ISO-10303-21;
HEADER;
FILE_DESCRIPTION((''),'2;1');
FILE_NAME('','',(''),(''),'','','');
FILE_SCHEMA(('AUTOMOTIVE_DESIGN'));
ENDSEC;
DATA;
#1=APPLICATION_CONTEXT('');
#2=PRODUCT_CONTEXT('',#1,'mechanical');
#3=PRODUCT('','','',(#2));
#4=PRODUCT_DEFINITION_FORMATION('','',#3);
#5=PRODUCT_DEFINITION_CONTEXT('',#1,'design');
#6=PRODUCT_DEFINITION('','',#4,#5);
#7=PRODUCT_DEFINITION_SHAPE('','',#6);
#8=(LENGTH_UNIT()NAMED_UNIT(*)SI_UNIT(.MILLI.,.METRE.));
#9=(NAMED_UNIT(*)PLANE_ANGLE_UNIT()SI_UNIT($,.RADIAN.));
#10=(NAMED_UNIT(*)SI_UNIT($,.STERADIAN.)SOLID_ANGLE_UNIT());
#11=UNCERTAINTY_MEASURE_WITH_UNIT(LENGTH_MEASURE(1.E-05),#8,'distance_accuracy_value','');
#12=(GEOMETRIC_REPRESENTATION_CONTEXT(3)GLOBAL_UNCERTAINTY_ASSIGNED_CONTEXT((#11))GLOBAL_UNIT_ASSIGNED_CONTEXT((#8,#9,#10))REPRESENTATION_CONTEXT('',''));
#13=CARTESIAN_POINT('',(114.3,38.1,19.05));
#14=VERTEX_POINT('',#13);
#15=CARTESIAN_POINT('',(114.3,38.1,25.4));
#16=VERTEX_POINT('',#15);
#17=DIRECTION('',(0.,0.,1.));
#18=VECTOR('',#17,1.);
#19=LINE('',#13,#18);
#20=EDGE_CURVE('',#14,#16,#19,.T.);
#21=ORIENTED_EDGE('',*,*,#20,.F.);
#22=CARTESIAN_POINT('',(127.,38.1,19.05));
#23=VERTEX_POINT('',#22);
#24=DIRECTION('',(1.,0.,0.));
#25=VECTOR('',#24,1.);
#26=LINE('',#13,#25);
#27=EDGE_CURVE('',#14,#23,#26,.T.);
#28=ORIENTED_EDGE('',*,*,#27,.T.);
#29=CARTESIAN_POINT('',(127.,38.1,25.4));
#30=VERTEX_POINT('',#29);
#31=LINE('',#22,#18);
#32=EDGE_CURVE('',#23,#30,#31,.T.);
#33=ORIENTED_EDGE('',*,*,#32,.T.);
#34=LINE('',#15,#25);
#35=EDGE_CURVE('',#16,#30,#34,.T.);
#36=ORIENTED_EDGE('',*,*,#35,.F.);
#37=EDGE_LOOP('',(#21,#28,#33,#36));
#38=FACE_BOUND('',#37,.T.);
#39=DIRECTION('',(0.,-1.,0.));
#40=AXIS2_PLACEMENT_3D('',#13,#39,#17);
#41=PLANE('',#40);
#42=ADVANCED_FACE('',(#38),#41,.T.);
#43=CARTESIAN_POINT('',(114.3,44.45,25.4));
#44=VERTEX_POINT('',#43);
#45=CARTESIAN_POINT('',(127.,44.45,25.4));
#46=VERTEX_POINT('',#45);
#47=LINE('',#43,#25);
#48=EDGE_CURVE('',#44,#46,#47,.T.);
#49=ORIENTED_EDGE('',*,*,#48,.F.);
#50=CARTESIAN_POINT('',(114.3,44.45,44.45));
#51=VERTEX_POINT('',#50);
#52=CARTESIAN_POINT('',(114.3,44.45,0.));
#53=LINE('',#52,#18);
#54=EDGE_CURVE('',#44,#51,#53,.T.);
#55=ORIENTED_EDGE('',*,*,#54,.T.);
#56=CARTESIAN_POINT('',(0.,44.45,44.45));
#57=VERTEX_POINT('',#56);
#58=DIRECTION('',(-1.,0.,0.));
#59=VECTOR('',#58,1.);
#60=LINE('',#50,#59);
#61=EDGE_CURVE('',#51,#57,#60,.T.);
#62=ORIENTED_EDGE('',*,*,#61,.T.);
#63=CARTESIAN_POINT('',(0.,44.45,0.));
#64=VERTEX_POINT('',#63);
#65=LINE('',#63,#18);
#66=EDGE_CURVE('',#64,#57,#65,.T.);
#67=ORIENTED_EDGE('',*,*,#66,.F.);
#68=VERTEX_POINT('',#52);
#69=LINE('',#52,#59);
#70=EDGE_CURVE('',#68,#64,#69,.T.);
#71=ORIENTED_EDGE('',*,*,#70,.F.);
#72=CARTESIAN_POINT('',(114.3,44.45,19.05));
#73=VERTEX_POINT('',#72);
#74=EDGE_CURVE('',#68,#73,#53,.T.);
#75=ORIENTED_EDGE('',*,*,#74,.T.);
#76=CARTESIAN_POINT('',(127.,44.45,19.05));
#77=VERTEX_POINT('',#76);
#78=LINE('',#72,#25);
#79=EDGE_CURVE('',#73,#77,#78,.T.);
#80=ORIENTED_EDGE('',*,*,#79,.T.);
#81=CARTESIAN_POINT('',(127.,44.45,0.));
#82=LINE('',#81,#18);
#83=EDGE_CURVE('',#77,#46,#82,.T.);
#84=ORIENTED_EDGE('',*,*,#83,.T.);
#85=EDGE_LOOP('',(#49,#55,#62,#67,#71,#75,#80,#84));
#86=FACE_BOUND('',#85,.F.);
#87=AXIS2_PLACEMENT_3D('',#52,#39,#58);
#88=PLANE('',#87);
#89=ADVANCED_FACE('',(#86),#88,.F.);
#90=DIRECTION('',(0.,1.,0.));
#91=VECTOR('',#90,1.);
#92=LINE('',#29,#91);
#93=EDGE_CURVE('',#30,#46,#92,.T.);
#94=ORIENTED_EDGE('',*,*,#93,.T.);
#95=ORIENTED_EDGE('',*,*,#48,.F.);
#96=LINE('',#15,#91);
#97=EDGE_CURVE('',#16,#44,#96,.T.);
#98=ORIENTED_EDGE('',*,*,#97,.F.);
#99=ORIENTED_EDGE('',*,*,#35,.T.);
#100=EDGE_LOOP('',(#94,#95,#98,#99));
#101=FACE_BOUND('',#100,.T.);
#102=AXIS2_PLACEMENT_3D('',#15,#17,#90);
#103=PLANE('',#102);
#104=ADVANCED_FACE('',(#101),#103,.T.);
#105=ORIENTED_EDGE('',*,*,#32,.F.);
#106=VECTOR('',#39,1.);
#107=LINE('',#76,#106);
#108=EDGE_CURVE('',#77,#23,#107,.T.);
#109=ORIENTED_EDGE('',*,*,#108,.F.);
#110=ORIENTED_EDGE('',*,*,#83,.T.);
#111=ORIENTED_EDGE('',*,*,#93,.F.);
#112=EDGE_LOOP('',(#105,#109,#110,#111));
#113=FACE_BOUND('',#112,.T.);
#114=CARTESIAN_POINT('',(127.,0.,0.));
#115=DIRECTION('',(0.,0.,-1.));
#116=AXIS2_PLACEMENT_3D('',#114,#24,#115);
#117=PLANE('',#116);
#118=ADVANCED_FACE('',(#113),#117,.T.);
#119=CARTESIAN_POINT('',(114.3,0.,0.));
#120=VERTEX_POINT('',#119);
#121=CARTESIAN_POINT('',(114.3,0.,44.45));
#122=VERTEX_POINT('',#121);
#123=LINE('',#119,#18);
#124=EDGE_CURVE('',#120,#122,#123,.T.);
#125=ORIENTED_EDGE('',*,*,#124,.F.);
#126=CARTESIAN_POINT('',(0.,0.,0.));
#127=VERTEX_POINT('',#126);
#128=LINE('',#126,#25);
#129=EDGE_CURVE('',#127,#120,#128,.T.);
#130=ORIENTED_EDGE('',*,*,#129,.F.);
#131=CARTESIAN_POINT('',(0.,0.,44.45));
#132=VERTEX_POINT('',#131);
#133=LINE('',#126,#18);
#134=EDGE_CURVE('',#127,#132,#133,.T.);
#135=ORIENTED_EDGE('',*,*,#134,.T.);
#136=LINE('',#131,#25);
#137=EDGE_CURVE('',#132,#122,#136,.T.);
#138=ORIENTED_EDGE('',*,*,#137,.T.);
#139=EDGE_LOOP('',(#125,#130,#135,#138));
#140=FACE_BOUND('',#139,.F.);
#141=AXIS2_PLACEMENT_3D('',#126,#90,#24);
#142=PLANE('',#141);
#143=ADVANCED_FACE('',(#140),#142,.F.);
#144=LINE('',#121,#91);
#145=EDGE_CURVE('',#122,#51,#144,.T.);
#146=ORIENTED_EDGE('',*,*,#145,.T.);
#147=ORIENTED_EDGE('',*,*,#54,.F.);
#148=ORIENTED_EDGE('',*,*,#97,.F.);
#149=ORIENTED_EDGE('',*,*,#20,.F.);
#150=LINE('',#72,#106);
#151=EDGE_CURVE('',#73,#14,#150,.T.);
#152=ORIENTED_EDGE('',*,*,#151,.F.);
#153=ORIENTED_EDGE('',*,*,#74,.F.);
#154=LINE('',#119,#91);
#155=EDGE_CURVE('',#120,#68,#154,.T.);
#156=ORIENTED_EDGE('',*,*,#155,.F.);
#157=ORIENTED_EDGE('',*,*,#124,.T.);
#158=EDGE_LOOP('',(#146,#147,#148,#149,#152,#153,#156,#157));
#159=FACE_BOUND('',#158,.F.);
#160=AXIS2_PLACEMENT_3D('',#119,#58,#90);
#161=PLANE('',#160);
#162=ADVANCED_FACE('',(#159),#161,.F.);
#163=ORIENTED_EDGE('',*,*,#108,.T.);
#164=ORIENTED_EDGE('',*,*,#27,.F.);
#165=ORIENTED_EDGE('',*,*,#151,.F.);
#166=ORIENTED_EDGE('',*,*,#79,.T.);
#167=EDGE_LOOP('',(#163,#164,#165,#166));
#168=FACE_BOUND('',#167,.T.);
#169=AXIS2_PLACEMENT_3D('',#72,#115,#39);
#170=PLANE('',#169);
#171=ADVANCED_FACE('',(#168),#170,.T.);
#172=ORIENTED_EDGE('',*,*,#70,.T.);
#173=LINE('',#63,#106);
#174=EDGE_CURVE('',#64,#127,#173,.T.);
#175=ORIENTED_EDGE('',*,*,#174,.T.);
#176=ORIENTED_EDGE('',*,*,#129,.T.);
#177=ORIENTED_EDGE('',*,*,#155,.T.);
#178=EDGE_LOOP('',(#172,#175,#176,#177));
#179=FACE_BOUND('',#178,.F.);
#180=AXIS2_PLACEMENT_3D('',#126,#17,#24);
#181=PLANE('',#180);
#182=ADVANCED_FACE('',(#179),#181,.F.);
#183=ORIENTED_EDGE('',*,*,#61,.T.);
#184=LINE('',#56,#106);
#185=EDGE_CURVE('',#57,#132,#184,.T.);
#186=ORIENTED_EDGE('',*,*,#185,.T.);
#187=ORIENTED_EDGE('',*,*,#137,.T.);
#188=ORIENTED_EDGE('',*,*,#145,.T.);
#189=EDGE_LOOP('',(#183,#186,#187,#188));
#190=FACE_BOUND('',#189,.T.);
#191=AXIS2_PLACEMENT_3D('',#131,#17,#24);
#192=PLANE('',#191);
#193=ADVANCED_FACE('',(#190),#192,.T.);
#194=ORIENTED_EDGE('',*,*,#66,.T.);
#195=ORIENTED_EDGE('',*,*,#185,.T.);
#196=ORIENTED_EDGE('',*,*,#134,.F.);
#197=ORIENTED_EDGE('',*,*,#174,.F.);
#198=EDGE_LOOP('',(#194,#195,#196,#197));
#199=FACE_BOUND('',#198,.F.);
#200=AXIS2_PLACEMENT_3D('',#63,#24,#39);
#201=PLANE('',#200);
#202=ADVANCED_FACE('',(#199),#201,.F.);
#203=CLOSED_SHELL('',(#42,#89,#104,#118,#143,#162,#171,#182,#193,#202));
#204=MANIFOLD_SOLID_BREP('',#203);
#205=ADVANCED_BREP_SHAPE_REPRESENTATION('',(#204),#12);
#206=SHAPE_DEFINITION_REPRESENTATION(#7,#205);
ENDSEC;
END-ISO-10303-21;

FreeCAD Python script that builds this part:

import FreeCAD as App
import Part
import Sketcher
from FreeCAD import Vector
Q = App.Units.Quantity


def add_polygon(sketch, points):
    """Adds a closed chain of lines whose ends are joined by coincident constraints."""
    first, n = sketch.GeometryCount, len(points)
    for a, b in zip(points, points[1:] + points[:1]):
        sketch.addGeometry(Part.LineSegment(App.Vector(*a, 0), App.Vector(*b, 0)), False)
    for i in range(n):
        sketch.addConstraint(Sketcher.Constraint("Coincident", first + i, 2, first + (i + 1) % n, 1))

doc = App.newDocument("Part")
body = doc.addObject("PartDesign::Body", "Body")

# Sketch on XY plane
sketch1 = body.newObject("Sketcher::SketchObject", "Sketch")
sketch1.AttachmentSupport = (doc.getObject("XY_Plane"), [""])
sketch1.MapMode = "FlatFace"
add_polygon(sketch1, [(0, 44), (0, 0), (114, 0), (114, 44)])  # lines 0-3
sketch1.addConstraint(Sketcher.Constraint("Vertical", 0))
sketch1.addConstraint(Sketcher.Constraint("Horizontal", 1))
sketch1.addConstraint(Sketcher.Constraint("Vertical", 2))
sketch1.addConstraint(Sketcher.Constraint("Horizontal", 3))
sketch1.addConstraint(Sketcher.Constraint("Coincident", 0, 2, -1, 1))
sketch1.addConstraint(Sketcher.Constraint("DistanceX", 1, 1, 1, 2, Q("4.5 in")))
sketch1.addConstraint(Sketcher.Constraint("DistanceY", 0, 2, 0, 1, Q("1.75 in")))
pad1 = body.newObject("PartDesign::Pad", "Pad")
pad1.Profile = sketch1
pad1.Length = Q("1.75 in")

# Sketch on YZ plane
sketch2 = body.newObject("Sketcher::SketchObject", "Sketch001")
sketch2.AttachmentSupport = (doc.getObject("YZ_Plane"), [""])
sketch2.MapMode = "FlatFace"
sketch2.AttachmentOffset = App.Placement(Vector(0, 0, 4.5 * 25.4), App.Rotation())
add_polygon(sketch2, [(38, 19), (44, 19), (44, 25), (38, 25)])  # lines 0-3
sketch2.addConstraint(Sketcher.Constraint("Horizontal", 0))
sketch2.addConstraint(Sketcher.Constraint("Vertical", 1))
sketch2.addConstraint(Sketcher.Constraint("Horizontal", 2))
sketch2.addConstraint(Sketcher.Constraint("Vertical", 3))
sketch2.addConstraint(Sketcher.Constraint("Equal", 2, 1))
sketch2.addConstraint(Sketcher.Constraint("DistanceX", 0, 1, 0, 2, Q("0.25 in")))
sketch2.addConstraint(Sketcher.Constraint("DistanceY", -1, 1, 0, 2, Q("0.75 in")))
sketch2.addConstraint(Sketcher.Constraint("DistanceX", -1, 1, 2, 2, Q("1.5 in")))
pad2 = body.newObject("PartDesign::Pad", "Pad001")
pad2.Profile = sketch2
pad2.Length = Q("0.5 in")

doc.recompute()
